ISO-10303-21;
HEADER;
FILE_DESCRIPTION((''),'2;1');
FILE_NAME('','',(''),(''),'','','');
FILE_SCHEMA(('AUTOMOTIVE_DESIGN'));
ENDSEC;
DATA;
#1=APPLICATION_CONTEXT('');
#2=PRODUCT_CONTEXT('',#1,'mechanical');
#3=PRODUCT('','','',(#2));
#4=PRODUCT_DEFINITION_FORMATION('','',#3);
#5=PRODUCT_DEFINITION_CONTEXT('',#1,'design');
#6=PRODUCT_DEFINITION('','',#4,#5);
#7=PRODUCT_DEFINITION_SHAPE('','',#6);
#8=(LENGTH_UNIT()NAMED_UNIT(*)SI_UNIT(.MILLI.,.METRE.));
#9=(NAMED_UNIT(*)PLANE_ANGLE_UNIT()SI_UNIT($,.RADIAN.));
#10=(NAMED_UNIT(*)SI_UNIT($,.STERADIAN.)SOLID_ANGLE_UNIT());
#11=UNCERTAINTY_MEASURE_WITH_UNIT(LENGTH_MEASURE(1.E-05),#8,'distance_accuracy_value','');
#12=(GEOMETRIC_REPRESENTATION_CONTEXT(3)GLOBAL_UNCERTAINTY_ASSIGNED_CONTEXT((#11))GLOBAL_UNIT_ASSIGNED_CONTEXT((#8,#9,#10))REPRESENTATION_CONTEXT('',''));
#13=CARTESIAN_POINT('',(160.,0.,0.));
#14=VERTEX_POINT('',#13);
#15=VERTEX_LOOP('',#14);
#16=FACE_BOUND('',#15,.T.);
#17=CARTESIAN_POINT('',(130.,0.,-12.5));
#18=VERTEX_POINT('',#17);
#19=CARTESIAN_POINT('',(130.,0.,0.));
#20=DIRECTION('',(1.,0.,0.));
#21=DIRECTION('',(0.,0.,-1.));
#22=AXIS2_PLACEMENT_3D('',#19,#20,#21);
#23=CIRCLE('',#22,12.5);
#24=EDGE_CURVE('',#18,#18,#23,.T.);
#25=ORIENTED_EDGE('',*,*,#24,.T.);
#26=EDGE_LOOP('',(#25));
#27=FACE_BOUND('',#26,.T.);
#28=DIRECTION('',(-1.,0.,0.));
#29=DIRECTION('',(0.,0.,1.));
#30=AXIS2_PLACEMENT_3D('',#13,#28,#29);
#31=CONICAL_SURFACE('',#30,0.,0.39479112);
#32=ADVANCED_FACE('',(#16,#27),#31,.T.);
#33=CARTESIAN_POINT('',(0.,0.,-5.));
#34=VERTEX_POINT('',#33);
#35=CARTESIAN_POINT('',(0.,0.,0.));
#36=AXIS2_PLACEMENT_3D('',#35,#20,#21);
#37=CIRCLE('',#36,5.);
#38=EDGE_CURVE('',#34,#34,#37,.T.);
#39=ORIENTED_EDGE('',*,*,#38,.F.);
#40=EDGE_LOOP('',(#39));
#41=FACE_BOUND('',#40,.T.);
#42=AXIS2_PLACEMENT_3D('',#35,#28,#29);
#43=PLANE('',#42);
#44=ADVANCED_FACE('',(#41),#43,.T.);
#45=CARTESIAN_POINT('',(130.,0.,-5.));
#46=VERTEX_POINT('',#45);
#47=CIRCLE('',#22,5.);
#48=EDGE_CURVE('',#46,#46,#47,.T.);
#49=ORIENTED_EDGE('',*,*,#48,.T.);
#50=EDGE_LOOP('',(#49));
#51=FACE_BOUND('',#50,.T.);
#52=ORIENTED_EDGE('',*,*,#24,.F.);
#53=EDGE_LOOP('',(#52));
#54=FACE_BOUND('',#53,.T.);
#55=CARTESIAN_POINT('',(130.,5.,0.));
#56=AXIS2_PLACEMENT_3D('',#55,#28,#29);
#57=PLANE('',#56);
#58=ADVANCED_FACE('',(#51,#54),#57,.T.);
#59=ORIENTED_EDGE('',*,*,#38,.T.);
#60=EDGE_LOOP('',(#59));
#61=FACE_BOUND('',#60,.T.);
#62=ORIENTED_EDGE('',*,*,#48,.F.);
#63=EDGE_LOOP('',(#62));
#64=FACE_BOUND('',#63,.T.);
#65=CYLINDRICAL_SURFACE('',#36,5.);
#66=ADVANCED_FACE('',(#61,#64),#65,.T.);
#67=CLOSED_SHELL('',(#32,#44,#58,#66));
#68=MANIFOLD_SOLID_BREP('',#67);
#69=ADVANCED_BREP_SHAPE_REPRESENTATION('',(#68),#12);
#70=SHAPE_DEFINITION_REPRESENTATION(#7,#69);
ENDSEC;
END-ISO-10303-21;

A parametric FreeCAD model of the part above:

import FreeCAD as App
import Part
import Sketcher

doc = App.newDocument("Part")
body = doc.addObject("PartDesign::Body", "Body")

# Sketch on XY plane
sketch1 = body.newObject("Sketcher::SketchObject", "Sketch")
sketch1.AttachmentSupport = (doc.getObject("XY_Plane"), [""])
sketch1.MapMode = "FlatFace"
sketch1.addGeometry([
    Part.LineSegment(App.Vector(0, 5, 0), App.Vector(0, 0, 0)),  # 0
    Part.LineSegment(App.Vector(0, 0, 0), App.Vector(160, 0, 0)),  # 1
    Part.LineSegment(App.Vector(160, 0, 0), App.Vector(130, 12.5, 0)),  # 2
    Part.LineSegment(App.Vector(130, 12.5, 0), App.Vector(130, 5, 0)),  # 3
    Part.LineSegment(App.Vector(130, 5, 0), App.Vector(0, 5, 0)),  # 4
], False)
sketch1.addConstraint([
    Sketcher.Constraint("Coincident", 0, 2, 1, 1),
    Sketcher.Constraint("Coincident", 1, 2, 2, 1),
    Sketcher.Constraint("Coincident", 2, 2, 3, 1),
    Sketcher.Constraint("Coincident", 3, 2, 4, 1),
    Sketcher.Constraint("Coincident", 4, 2, 0, 1),
    Sketcher.Constraint("Vertical", 0),
    Sketcher.Constraint("Horizontal", 1),
    Sketcher.Constraint("Vertical", 3),
    Sketcher.Constraint("Horizontal", 4),
    Sketcher.Constraint("Coincident", 0, 2, -1, 1),
    Sketcher.Constraint("DistanceX", 1, 1, 1, 2, 160.0),
    Sketcher.Constraint("DistanceX", 4, 2, 4, 1, 130.0),
    Sketcher.Constraint("DistanceY", 0, 2, 0, 1, 5.0),
    Sketcher.Constraint("DistanceY", 3, 2, 3, 1, 7.5),
])
revolution = body.newObject("PartDesign::Revolution", "Revolution")
revolution.Profile = sketch1
revolution.ReferenceAxis = (sketch1, ["H_Axis"])
revolution.Angle = 360

doc.recompute()
